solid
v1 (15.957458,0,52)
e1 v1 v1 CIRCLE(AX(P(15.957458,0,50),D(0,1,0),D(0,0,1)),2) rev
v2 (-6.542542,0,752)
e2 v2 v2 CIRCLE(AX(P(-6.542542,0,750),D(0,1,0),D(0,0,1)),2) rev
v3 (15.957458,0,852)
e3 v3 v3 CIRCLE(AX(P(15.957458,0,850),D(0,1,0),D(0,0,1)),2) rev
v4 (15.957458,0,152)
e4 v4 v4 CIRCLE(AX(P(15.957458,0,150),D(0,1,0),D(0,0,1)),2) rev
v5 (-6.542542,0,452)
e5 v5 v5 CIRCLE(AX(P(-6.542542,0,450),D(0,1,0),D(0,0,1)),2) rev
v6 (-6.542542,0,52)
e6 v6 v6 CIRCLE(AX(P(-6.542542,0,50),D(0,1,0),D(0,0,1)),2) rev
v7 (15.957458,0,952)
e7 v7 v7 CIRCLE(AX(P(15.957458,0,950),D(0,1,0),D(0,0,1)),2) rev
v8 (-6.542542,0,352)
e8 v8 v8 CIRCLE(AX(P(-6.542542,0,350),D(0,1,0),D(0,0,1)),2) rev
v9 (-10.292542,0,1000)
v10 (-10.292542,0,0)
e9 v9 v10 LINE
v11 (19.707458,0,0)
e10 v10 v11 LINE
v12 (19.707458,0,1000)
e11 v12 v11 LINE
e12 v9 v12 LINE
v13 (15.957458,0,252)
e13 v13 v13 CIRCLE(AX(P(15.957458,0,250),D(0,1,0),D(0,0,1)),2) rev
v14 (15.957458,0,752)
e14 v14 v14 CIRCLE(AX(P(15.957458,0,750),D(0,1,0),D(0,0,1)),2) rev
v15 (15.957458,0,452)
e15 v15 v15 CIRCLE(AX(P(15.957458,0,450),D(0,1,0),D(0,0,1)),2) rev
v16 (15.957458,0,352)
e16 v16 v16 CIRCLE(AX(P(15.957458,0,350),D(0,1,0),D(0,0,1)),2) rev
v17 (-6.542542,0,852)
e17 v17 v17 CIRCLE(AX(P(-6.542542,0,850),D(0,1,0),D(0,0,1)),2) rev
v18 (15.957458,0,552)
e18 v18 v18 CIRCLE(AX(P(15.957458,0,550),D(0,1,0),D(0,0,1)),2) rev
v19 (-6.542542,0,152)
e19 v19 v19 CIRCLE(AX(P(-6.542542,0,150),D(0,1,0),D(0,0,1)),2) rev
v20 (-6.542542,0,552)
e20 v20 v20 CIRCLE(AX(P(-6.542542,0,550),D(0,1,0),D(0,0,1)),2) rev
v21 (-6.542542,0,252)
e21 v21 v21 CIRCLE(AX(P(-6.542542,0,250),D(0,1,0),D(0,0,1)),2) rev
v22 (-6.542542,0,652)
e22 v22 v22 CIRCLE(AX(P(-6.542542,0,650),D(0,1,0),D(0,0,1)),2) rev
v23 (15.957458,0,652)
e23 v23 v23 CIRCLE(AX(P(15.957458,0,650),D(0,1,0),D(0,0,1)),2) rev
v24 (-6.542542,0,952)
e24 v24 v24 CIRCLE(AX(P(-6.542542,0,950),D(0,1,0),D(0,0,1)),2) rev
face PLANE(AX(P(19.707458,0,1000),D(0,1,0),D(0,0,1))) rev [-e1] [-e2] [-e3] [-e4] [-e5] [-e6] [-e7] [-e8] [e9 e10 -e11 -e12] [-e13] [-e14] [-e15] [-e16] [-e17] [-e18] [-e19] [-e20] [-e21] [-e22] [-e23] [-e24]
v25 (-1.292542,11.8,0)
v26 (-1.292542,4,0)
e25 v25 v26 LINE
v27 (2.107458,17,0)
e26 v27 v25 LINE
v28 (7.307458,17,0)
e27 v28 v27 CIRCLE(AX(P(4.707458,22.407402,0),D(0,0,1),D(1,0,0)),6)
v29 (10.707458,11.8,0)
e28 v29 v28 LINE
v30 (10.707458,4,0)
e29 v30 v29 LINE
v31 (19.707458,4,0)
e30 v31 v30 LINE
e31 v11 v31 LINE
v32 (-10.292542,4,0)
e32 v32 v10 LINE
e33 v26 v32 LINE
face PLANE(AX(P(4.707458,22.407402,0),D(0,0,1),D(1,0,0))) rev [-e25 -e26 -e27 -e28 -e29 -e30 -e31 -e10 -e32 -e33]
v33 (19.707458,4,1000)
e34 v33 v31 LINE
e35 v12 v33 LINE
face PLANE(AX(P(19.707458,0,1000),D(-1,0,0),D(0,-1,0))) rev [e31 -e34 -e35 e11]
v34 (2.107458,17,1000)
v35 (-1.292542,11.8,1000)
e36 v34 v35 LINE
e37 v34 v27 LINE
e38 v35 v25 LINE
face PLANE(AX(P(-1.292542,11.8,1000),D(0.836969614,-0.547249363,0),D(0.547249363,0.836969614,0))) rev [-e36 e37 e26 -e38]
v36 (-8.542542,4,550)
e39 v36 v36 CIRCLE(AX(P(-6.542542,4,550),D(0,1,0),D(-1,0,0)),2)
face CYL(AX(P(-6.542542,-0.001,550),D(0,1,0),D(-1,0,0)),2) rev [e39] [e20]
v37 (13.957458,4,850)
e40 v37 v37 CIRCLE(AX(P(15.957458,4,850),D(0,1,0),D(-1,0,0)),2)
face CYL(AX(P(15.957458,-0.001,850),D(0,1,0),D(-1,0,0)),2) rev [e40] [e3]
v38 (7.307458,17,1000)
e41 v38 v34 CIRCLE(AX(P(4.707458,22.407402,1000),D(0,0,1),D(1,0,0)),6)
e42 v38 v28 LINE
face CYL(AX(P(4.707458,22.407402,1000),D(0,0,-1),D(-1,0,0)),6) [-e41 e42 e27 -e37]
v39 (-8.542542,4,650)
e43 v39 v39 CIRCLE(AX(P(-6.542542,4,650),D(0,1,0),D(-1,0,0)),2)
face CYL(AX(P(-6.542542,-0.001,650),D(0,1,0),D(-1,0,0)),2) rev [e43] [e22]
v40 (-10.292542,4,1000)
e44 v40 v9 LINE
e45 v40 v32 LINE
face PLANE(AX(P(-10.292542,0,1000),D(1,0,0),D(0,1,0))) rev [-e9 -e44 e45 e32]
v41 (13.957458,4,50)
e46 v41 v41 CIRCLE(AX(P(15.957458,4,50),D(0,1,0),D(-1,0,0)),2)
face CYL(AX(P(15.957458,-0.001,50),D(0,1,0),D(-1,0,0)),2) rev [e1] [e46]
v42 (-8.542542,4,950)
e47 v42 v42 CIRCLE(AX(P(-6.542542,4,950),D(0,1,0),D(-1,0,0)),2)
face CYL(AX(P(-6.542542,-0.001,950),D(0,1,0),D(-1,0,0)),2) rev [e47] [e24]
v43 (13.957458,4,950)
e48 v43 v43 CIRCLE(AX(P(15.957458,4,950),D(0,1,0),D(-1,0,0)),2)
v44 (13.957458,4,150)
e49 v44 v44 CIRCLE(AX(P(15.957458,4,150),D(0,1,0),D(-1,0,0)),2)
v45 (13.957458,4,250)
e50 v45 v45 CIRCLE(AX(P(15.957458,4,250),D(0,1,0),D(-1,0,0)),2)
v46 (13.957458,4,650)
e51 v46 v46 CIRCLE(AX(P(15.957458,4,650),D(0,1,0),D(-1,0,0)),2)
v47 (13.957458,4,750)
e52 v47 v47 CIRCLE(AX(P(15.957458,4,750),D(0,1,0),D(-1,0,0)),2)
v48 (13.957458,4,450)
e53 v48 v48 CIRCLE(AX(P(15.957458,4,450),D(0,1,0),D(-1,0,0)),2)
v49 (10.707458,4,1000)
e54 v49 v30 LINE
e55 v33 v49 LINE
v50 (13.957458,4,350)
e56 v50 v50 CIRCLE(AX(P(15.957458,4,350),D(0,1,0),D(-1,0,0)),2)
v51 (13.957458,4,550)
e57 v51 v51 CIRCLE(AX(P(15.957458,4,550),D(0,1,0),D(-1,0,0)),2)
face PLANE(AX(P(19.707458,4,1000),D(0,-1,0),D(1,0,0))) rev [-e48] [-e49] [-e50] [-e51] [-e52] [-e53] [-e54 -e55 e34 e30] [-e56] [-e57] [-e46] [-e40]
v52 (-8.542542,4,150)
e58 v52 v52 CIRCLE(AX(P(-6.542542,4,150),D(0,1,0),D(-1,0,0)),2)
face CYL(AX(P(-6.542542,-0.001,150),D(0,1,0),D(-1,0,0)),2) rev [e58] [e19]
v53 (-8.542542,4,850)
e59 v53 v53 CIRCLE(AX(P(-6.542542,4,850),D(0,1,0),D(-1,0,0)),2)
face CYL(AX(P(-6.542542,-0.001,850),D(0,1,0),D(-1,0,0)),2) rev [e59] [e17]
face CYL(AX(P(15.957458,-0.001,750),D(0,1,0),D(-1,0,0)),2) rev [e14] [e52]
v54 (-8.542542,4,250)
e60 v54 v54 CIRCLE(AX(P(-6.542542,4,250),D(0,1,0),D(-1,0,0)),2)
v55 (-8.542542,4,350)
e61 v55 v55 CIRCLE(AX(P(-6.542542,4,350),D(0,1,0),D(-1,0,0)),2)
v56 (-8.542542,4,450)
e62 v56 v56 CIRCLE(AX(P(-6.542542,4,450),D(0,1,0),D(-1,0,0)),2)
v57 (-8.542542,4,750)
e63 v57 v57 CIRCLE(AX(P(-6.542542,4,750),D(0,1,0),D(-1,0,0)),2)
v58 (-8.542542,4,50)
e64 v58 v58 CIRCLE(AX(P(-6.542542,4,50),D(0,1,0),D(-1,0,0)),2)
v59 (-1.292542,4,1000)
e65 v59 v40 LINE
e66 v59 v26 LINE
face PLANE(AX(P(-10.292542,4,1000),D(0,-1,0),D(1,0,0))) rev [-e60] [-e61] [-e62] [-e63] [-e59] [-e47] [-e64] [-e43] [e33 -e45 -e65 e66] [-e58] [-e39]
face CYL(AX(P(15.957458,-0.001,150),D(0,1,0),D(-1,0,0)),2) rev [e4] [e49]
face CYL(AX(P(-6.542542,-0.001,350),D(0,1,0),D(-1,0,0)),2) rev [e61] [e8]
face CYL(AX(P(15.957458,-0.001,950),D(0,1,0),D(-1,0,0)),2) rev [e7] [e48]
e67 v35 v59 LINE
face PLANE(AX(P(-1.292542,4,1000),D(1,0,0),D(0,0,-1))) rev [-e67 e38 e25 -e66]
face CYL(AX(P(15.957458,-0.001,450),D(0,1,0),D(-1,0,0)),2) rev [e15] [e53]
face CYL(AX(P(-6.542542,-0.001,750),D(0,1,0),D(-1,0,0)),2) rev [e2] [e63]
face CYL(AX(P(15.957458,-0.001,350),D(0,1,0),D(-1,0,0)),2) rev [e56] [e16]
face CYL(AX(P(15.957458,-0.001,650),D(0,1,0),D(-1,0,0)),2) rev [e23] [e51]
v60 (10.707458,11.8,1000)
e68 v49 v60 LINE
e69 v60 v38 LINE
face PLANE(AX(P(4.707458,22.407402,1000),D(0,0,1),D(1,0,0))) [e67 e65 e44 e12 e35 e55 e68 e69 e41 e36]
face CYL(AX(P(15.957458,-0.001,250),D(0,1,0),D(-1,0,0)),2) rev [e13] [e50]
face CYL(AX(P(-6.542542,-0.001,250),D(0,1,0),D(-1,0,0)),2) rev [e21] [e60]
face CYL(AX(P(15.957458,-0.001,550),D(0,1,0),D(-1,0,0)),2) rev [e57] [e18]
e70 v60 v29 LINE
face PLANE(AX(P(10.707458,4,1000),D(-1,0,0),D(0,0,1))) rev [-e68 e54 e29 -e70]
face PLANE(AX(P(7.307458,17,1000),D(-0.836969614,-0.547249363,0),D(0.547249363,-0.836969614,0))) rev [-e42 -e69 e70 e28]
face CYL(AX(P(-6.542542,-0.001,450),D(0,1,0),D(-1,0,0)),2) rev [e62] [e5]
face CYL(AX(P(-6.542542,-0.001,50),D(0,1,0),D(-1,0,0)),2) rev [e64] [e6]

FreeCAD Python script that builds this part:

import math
import FreeCAD as App
import Part
import Sketcher

V = App.Vector
Q = App.Units.Quantity

doc = App.newDocument("Part")
params = doc.addObject("Spreadsheet::Sheet", "Params")
for row, (alias, value) in enumerate([
    ("sketch1_radius", "6 mm"),
    ("sketch1_width", "30 mm"),
    ("sketch1_width2", "9 mm"),
    ("sketch1_height", "4 mm"),
    ("sketch1_height2", "7.8 mm"),
    ("pad1_length", "1000 mm"),
    ("sketch2_diameter", "4 mm"),
    ("sketch3_diameter", "4 mm"),
    ("sketch4_diameter", "4 mm"),
    ("sketch5_diameter", "4 mm"),
    ("sketch6_diameter", "4 mm"),
    ("sketch7_diameter", "4 mm"),
    ("sketch8_diameter", "4 mm"),
    ("sketch9_diameter", "4 mm"),
    ("sketch10_diameter", "4 mm"),
    ("sketch11_diameter", "4 mm"),
    ("sketch12_diameter", "4 mm"),
    ("sketch13_diameter", "4 mm"),
    ("sketch14_diameter", "4 mm"),
    ("sketch15_diameter", "4 mm"),
    ("sketch16_diameter", "4 mm"),
    ("sketch17_diameter", "4 mm"),
    ("sketch18_diameter", "4 mm"),
    ("sketch19_diameter", "4 mm"),
    ("sketch20_diameter", "4 mm"),
    ("sketch21_diameter", "4 mm"),
], start=1):
    params.set(f"A{row}", alias)
    params.set(f"B{row}", "=" + value)
    params.setAlias(f"B{row}", alias)

body = doc.addObject("PartDesign::Body", "Body")

sketch1 = body.newObject("Sketcher::SketchObject", "Sketch")
sketch1.AttachmentSupport = (doc.getObject("XY_Plane"), [""])
sketch1.MapMode = "FlatFace"
sketch1.addGeometry(Part.LineSegment(V(-10.3, 0, 0), V(19.7, 0, 0)), False)
sketch1.addGeometry(Part.LineSegment(V(19.7, 0, 0), V(19.7, 4, 0)), False)
sketch1.addGeometry(Part.LineSegment(V(19.7, 4, 0), V(10.7, 4, 0)), False)
sketch1.addGeometry(Part.LineSegment(V(10.7, 4, 0), V(10.7, 11.8, 0)), False)
sketch1.addGeometry(Part.LineSegment(V(10.7, 11.8, 0), V(7.3, 17, 0)), False)
sketch1.addGeometry(Part.ArcOfCircle(Part.Circle(V(4.7, 22.4, 0), V(0, 0, 1), 6), math.radians(-64), math.radians(244)), False)
sketch1.addGeometry(Part.LineSegment(V(2.1, 17, 0), V(-1.3, 11.8, 0)), False)
sketch1.addGeometry(Part.LineSegment(V(-1.3, 11.8, 0), V(-1.3, 4, 0)), False)
sketch1.addGeometry(Part.LineSegment(V(-1.3, 4, 0), V(-10.3, 4, 0)), False)
sketch1.addGeometry(Part.LineSegment(V(-10.3, 4, 0), V(-10.3, 0, 0)), False)
sketch1.addConstraint(Sketcher.Constraint("Coincident", 0, 2, 1, 1))
sketch1.addConstraint(Sketcher.Constraint("Coincident", 1, 2, 2, 1))
sketch1.addConstraint(Sketcher.Constraint("Coincident", 2, 2, 3, 1))
sketch1.addConstraint(Sketcher.Constraint("Coincident", 3, 2, 4, 1))
sketch1.addConstraint(Sketcher.Constraint("Coincident", 4, 2, 5, 1))
sketch1.addConstraint(Sketcher.Constraint("Coincident", 5, 2, 6, 1))
sketch1.addConstraint(Sketcher.Constraint("Coincident", 6, 2, 7, 1))
sketch1.addConstraint(Sketcher.Constraint("Coincident", 7, 2, 8, 1))
sketch1.addConstraint(Sketcher.Constraint("Coincident", 8, 2, 9, 1))
sketch1.addConstraint(Sketcher.Constraint("Coincident", 9, 2, 0, 1))
sketch1.addConstraint(Sketcher.Constraint("Horizontal", 0))
sketch1.addConstraint(Sketcher.Constraint("Vertical", 1))
sketch1.addConstraint(Sketcher.Constraint("Horizontal", 2))
sketch1.addConstraint(Sketcher.Constraint("Vertical", 3))
sketch1.addConstraint(Sketcher.Constraint("Vertical", 7))
sketch1.addConstraint(Sketcher.Constraint("Horizontal", 8))
sketch1.addConstraint(Sketcher.Constraint("Vertical", 9))
sketch1.addConstraint(Sketcher.Constraint("PointOnObject", 0, 2, -1))
sketch1.addConstraint(Sketcher.Constraint("Horizontal", 4, 2, 5, 2))
sketch1.addConstraint(Sketcher.Constraint("Horizontal", 3, 2, 6, 2))
sketch1.addConstraint(Sketcher.Constraint("Horizontal", 2, 2, 7, 2))
sketch1.addConstraint(Sketcher.Constraint("Equal", 2, 8))
sketch1.addConstraint(Sketcher.Constraint("Equal", 4, 6))
sketch1.addConstraint(Sketcher.Constraint("Radius", 5, Q("6 mm")))
sketch1.addConstraint(Sketcher.Constraint("DistanceX", 0, 1, 0, 2, Q("30 mm")))
sketch1.addConstraint(Sketcher.Constraint("DistanceX", 2, 2, 2, 1, Q("9 mm")))
sketch1.addConstraint(Sketcher.Constraint("DistanceY", 1, 1, 1, 2, Q("4 mm")))
sketch1.addConstraint(Sketcher.Constraint("DistanceY", 3, 1, 3, 2, Q("7.8 mm")))
sketch1.addConstraint(Sketcher.Constraint("DistanceY", -1, 1, 4, 2, Q("17 mm")))
sketch1.addConstraint(Sketcher.Constraint("DistanceX", 5, 3, 4, 2, Q("2.6 mm")))
sketch1.addConstraint(Sketcher.Constraint("DistanceX", -1, 1, 5, 3, Q("4.707458 mm")))
sketch1.setExpression("Constraints[23]", "Params.sketch1_radius")
sketch1.setExpression("Constraints[24]", "Params.sketch1_width")
sketch1.setExpression("Constraints[25]", "Params.sketch1_width2")
sketch1.setExpression("Constraints[26]", "Params.sketch1_height")
sketch1.setExpression("Constraints[27]", "Params.sketch1_height2")
pad1 = body.newObject("PartDesign::Pad", "Pad")
pad1.Profile = sketch1
pad1.setExpression("Length", "Params.pad1_length")

sketch2 = body.newObject("Sketcher::SketchObject", "Sketch001")
sketch2.AttachmentSupport = (doc.getObject("XZ_Plane"), [""])
sketch2.MapMode = "FlatFace"
sketch2.AttachmentOffset = App.Placement(V(0, 0, -4), App.Rotation())
sketch2.addGeometry(Part.Circle(V(-6.5, 50, 0), V(0, 0, 1), 2), False)
sketch2.addConstraint(Sketcher.Constraint("Diameter", 0, Q("4 mm")))
sketch2.addConstraint(Sketcher.Constraint("DistanceY", -1, 1, 0, 3, Q("50 mm")))
sketch2.addConstraint(Sketcher.Constraint("DistanceX", 0, 3, -1, 1, Q("6.542542 mm")))
sketch2.setExpression("Constraints[0]", "Params.sketch2_diameter")
pocket1 = body.newObject("PartDesign::Pocket", "Pocket")
pocket1.Profile = sketch2
pocket1.Type = "UpToFirst"
pocket1.Reversed = True

sketch3 = body.newObject("Sketcher::SketchObject", "Sketch002")
sketch3.AttachmentSupport = (doc.getObject("XZ_Plane"), [""])
sketch3.MapMode = "FlatFace"
sketch3.AttachmentOffset = App.Placement(V(0, 0, -4), App.Rotation())
sketch3.addGeometry(Part.Circle(V(-6.5, 150, 0), V(0, 0, 1), 2), False)
sketch3.addConstraint(Sketcher.Constraint("Diameter", 0, Q("4 mm")))
sketch3.addConstraint(Sketcher.Constraint("DistanceY", -1, 1, 0, 3, Q("150 mm")))
sketch3.addConstraint(Sketcher.Constraint("DistanceX", 0, 3, -1, 1, Q("6.542542 mm")))
sketch3.setExpression("Constraints[0]", "Params.sketch3_diameter")
pocket2 = body.newObject("PartDesign::Pocket", "Pocket001")
pocket2.Profile = sketch3
pocket2.Type = "UpToFirst"
pocket2.Reversed = True

sketch4 = body.newObject("Sketcher::SketchObject", "Sketch003")
sketch4.AttachmentSupport = (doc.getObject("XZ_Plane"), [""])
sketch4.MapMode = "FlatFace"
sketch4.AttachmentOffset = App.Placement(V(0, 0, -4), App.Rotation())
sketch4.addGeometry(Part.Circle(V(-6.5, 250, 0), V(0, 0, 1), 2), False)
sketch4.addConstraint(Sketcher.Constraint("Diameter", 0, Q("4 mm")))
sketch4.addConstraint(Sketcher.Constraint("DistanceY", -1, 1, 0, 3, Q("250 mm")))
sketch4.addConstraint(Sketcher.Constraint("DistanceX", 0, 3, -1, 1, Q("6.542542 mm")))
sketch4.setExpression("Constraints[0]", "Params.sketch4_diameter")
pocket3 = body.newObject("PartDesign::Pocket", "Pocket002")
pocket3.Profile = sketch4
pocket3.Type = "UpToFirst"
pocket3.Reversed = True

sketch5 = body.newObject("Sketcher::SketchObject", "Sketch004")
sketch5.AttachmentSupport = (doc.getObject("XZ_Plane"), [""])
sketch5.MapMode = "FlatFace"
sketch5.AttachmentOffset = App.Placement(V(0, 0, -4), App.Rotation())
sketch5.addGeometry(Part.Circle(V(-6.5, 350, 0), V(0, 0, 1), 2), False)
sketch5.addConstraint(Sketcher.Constraint("Diameter", 0, Q("4 mm")))
sketch5.addConstraint(Sketcher.Constraint("DistanceY", -1, 1, 0, 3, Q("350 mm")))
sketch5.addConstraint(Sketcher.Constraint("DistanceX", 0, 3, -1, 1, Q("6.542542 mm")))
sketch5.setExpression("Constraints[0]", "Params.sketch5_diameter")
pocket4 = body.newObject("PartDesign::Pocket", "Pocket003")
pocket4.Profile = sketch5
pocket4.Type = "UpToFirst"
pocket4.Reversed = True

sketch6 = body.newObject("Sketcher::SketchObject", "Sketch005")
sketch6.AttachmentSupport = (doc.getObject("XZ_Plane"), [""])
sketch6.MapMode = "FlatFace"
sketch6.AttachmentOffset = App.Placement(V(0, 0, -4), App.Rotation())
sketch6.addGeometry(Part.Circle(V(-6.5, 450, 0), V(0, 0, 1), 2), False)
sketch6.addConstraint(Sketcher.Constraint("Diameter", 0, Q("4 mm")))
sketch6.addConstraint(Sketcher.Constraint("DistanceY", -1, 1, 0, 3, Q("450 mm")))
sketch6.addConstraint(Sketcher.Constraint("DistanceX", 0, 3, -1, 1, Q("6.542542 mm")))
sketch6.setExpression("Constraints[0]", "Params.sketch6_diameter")
pocket5 = body.newObject("PartDesign::Pocket", "Pocket004")
pocket5.Profile = sketch6
pocket5.Type = "UpToFirst"
pocket5.Reversed = True

sketch7 = body.newObject("Sketcher::SketchObject", "Sketch006")
sketch7.AttachmentSupport = (doc.getObject("XZ_Plane"), [""])
sketch7.MapMode = "FlatFace"
sketch7.AttachmentOffset = App.Placement(V(0, 0, -4), App.Rotation())
sketch7.addGeometry(Part.Circle(V(-6.5, 550, 0), V(0, 0, 1), 2), False)
sketch7.addConstraint(Sketcher.Constraint("Diameter", 0, Q("4 mm")))
sketch7.addConstraint(Sketcher.Constraint("DistanceY", -1, 1, 0, 3, Q("550 mm")))
sketch7.addConstraint(Sketcher.Constraint("DistanceX", 0, 3, -1, 1, Q("6.542542 mm")))
sketch7.setExpression("Constraints[0]", "Params.sketch7_diameter")
pocket6 = body.newObject("PartDesign::Pocket", "Pocket005")
pocket6.Profile = sketch7
pocket6.Type = "UpToFirst"
pocket6.Reversed = True

sketch8 = body.newObject("Sketcher::SketchObject", "Sketch007")
sketch8.AttachmentSupport = (doc.getObject("XZ_Plane"), [""])
sketch8.MapMode = "FlatFace"
sketch8.AttachmentOffset = App.Placement(V(0, 0, -4), App.Rotation())
sketch8.addGeometry(Part.Circle(V(-6.5, 650, 0), V(0, 0, 1), 2), False)
sketch8.addConstraint(Sketcher.Constraint("Diameter", 0, Q("4 mm")))
sketch8.addConstraint(Sketcher.Constraint("DistanceY", -1, 1, 0, 3, Q("650 mm")))
sketch8.addConstraint(Sketcher.Constraint("DistanceX", 0, 3, -1, 1, Q("6.542542 mm")))
sketch8.setExpression("Constraints[0]", "Params.sketch8_diameter")
pocket7 = body.newObject("PartDesign::Pocket", "Pocket006")
pocket7.Profile = sketch8
pocket7.Type = "UpToFirst"
pocket7.Reversed = True

sketch9 = body.newObject("Sketcher::SketchObject", "Sketch008")
sketch9.AttachmentSupport = (doc.getObject("XZ_Plane"), [""])
sketch9.MapMode = "FlatFace"
sketch9.AttachmentOffset = App.Placement(V(0, 0, -4), App.Rotation())
sketch9.addGeometry(Part.Circle(V(-6.5, 750, 0), V(0, 0, 1), 2), False)
sketch9.addConstraint(Sketcher.Constraint("Diameter", 0, Q("4 mm")))
sketch9.addConstraint(Sketcher.Constraint("DistanceY", -1, 1, 0, 3, Q("750 mm")))
sketch9.addConstraint(Sketcher.Constraint("DistanceX", 0, 3, -1, 1, Q("6.542542 mm")))
sketch9.setExpression("Constraints[0]", "Params.sketch9_diameter")
pocket8 = body.newObject("PartDesign::Pocket", "Pocket007")
pocket8.Profile = sketch9
pocket8.Type = "UpToFirst"
pocket8.Reversed = True

sketch10 = body.newObject("Sketcher::SketchObject", "Sketch009")
sketch10.AttachmentSupport = (doc.getObject("XZ_Plane"), [""])
sketch10.MapMode = "FlatFace"
sketch10.AttachmentOffset = App.Placement(V(0, 0, -4), App.Rotation())
sketch10.addGeometry(Part.Circle(V(-6.5, 850, 0), V(0, 0, 1), 2), False)
sketch10.addConstraint(Sketcher.Constraint("Diameter", 0, Q("4 mm")))
sketch10.addConstraint(Sketcher.Constraint("DistanceY", -1, 1, 0, 3, Q("850 mm")))
sketch10.addConstraint(Sketcher.Constraint("DistanceX", 0, 3, -1, 1, Q("6.542542 mm")))
sketch10.setExpression("Constraints[0]", "Params.sketch10_diameter")
pocket9 = body.newObject("PartDesign::Pocket", "Pocket008")
pocket9.Profile = sketch10
pocket9.Type = "UpToFirst"
pocket9.Reversed = True

sketch11 = body.newObject("Sketcher::SketchObject", "Sketch010")
sketch11.AttachmentSupport = (doc.getObject("XZ_Plane"), [""])
sketch11.MapMode = "FlatFace"
sketch11.AttachmentOffset = App.Placement(V(0, 0, -4), App.Rotation())
sketch11.addGeometry(Part.Circle(V(-6.5, 950, 0), V(0, 0, 1), 2), False)
sketch11.addConstraint(Sketcher.Constraint("Diameter", 0, Q("4 mm")))
sketch11.addConstraint(Sketcher.Constraint("DistanceY", -1, 1, 0, 3, Q("950 mm")))
sketch11.addConstraint(Sketcher.Constraint("DistanceX", 0, 3, -1, 1, Q("6.542542 mm")))
sketch11.setExpression("Constraints[0]", "Params.sketch11_diameter")
pocket10 = body.newObject("PartDesign::Pocket", "Pocket009")
pocket10.Profile = sketch11
pocket10.Type = "UpToFirst"
pocket10.Reversed = True

sketch12 = body.newObject("Sketcher::SketchObject", "Sketch011")
sketch12.AttachmentSupport = (doc.getObject("XZ_Plane"), [""])
sketch12.MapMode = "FlatFace"
sketch12.AttachmentOffset = App.Placement(V(0, 0, -4), App.Rotation())
sketch12.addGeometry(Part.Circle(V(16, 50, 0), V(0, 0, 1), 2), False)
sketch12.addConstraint(Sketcher.Constraint("Diameter", 0, Q("4 mm")))
sketch12.addConstraint(Sketcher.Constraint("DistanceY", -1, 1, 0, 3, Q("50 mm")))
sketch12.addConstraint(Sketcher.Constraint("DistanceX", -1, 1, 0, 3, Q("15.957458 mm")))
sketch12.setExpression("Constraints[0]", "Params.sketch12_diameter")
pocket11 = body.newObject("PartDesign::Pocket", "Pocket010")
pocket11.Profile = sketch12
pocket11.Type = "UpToFirst"
pocket11.Reversed = True

sketch13 = body.newObject("Sketcher::SketchObject", "Sketch012")
sketch13.AttachmentSupport = (doc.getObject("XZ_Plane"), [""])
sketch13.MapMode = "FlatFace"
sketch13.AttachmentOffset = App.Placement(V(0, 0, -4), App.Rotation())
sketch13.addGeometry(Part.Circle(V(16, 150, 0), V(0, 0, 1), 2), False)
sketch13.addConstraint(Sketcher.Constraint("Diameter", 0, Q("4 mm")))
sketch13.addConstraint(Sketcher.Constraint("DistanceY", -1, 1, 0, 3, Q("150 mm")))
sketch13.addConstraint(Sketcher.Constraint("DistanceX", -1, 1, 0, 3, Q("15.957458 mm")))
sketch13.setExpression("Constraints[0]", "Params.sketch13_diameter")
pocket12 = body.newObject("PartDesign::Pocket", "Pocket011")
pocket12.Profile = sketch13
pocket12.Type = "UpToFirst"
pocket12.Reversed = True

sketch14 = body.newObject("Sketcher::SketchObject", "Sketch013")
sketch14.AttachmentSupport = (doc.getObject("XZ_Plane"), [""])
sketch14.MapMode = "FlatFace"
sketch14.AttachmentOffset = App.Placement(V(0, 0, -4), App.Rotation())
sketch14.addGeometry(Part.Circle(V(16, 250, 0), V(0, 0, 1), 2), False)
sketch14.addConstraint(Sketcher.Constraint("Diameter", 0, Q("4 mm")))
sketch14.addConstraint(Sketcher.Constraint("DistanceY", -1, 1, 0, 3, Q("250 mm")))
sketch14.addConstraint(Sketcher.Constraint("DistanceX", -1, 1, 0, 3, Q("15.957458 mm")))
sketch14.setExpression("Constraints[0]", "Params.sketch14_diameter")
pocket13 = body.newObject("PartDesign::Pocket", "Pocket012")
pocket13.Profile = sketch14
pocket13.Type = "UpToFirst"
pocket13.Reversed = True

sketch15 = body.newObject("Sketcher::SketchObject", "Sketch014")
sketch15.AttachmentSupport = (doc.getObject("XZ_Plane"), [""])
sketch15.MapMode = "FlatFace"
sketch15.AttachmentOffset = App.Placement(V(0, 0, -4), App.Rotation())
sketch15.addGeometry(Part.Circle(V(16, 350, 0), V(0, 0, 1), 2), False)
sketch15.addConstraint(Sketcher.Constraint("Diameter", 0, Q("4 mm")))
sketch15.addConstraint(Sketcher.Constraint("DistanceY", -1, 1, 0, 3, Q("350 mm")))
sketch15.addConstraint(Sketcher.Constraint("DistanceX", -1, 1, 0, 3, Q("15.957458 mm")))
sketch15.setExpression("Constraints[0]", "Params.sketch15_diameter")
pocket14 = body.newObject("PartDesign::Pocket", "Pocket013")
pocket14.Profile = sketch15
pocket14.Type = "UpToFirst"
pocket14.Reversed = True

sketch16 = body.newObject("Sketcher::SketchObject", "Sketch015")
sketch16.AttachmentSupport = (doc.getObject("XZ_Plane"), [""])
sketch16.MapMode = "FlatFace"
sketch16.AttachmentOffset = App.Placement(V(0, 0, -4), App.Rotation())
sketch16.addGeometry(Part.Circle(V(16, 450, 0), V(0, 0, 1), 2), False)
sketch16.addConstraint(Sketcher.Constraint("Diameter", 0, Q("4 mm")))
sketch16.addConstraint(Sketcher.Constraint("DistanceY", -1, 1, 0, 3, Q("450 mm")))
sketch16.addConstraint(Sketcher.Constraint("DistanceX", -1, 1, 0, 3, Q("15.957458 mm")))
sketch16.setExpression("Constraints[0]", "Params.sketch16_diameter")
pocket15 = body.newObject("PartDesign::Pocket", "Pocket014")
pocket15.Profile = sketch16
pocket15.Type = "UpToFirst"
pocket15.Reversed = True

sketch17 = body.newObject("Sketcher::SketchObject", "Sketch016")
sketch17.AttachmentSupport = (doc.getObject("XZ_Plane"), [""])
sketch17.MapMode = "FlatFace"
sketch17.AttachmentOffset = App.Placement(V(0, 0, -4), App.Rotation())
sketch17.addGeometry(Part.Circle(V(16, 550, 0), V(0, 0, 1), 2), False)
sketch17.addConstraint(Sketcher.Constraint("Diameter", 0, Q("4 mm")))
sketch17.addConstraint(Sketcher.Constraint("DistanceY", -1, 1, 0, 3, Q("550 mm")))
sketch17.addConstraint(Sketcher.Constraint("DistanceX", -1, 1, 0, 3, Q("15.957458 mm")))
sketch17.setExpression("Constraints[0]", "Params.sketch17_diameter")
pocket16 = body.newObject("PartDesign::Pocket", "Pocket015")
pocket16.Profile = sketch17
pocket16.Type = "UpToFirst"
pocket16.Reversed = True

sketch18 = body.newObject("Sketcher::SketchObject", "Sketch017")
sketch18.AttachmentSupport = (doc.getObject("XZ_Plane"), [""])
sketch18.MapMode = "FlatFace"
sketch18.AttachmentOffset = App.Placement(V(0, 0, -4), App.Rotation())
sketch18.addGeometry(Part.Circle(V(16, 650, 0), V(0, 0, 1), 2), False)
sketch18.addConstraint(Sketcher.Constraint("Diameter", 0, Q("4 mm")))
sketch18.addConstraint(Sketcher.Constraint("DistanceY", -1, 1, 0, 3, Q("650 mm")))
sketch18.addConstraint(Sketcher.Constraint("DistanceX", -1, 1, 0, 3, Q("15.957458 mm")))
sketch18.setExpression("Constraints[0]", "Params.sketch18_diameter")
pocket17 = body.newObject("PartDesign::Pocket", "Pocket016")
pocket17.Profile = sketch18
pocket17.Type = "UpToFirst"
pocket17.Reversed = True

sketch19 = body.newObject("Sketcher::SketchObject", "Sketch018")
sketch19.AttachmentSupport = (doc.getObject("XZ_Plane"), [""])
sketch19.MapMode = "FlatFace"
sketch19.AttachmentOffset = App.Placement(V(0, 0, -4), App.Rotation())
sketch19.addGeometry(Part.Circle(V(16, 750, 0), V(0, 0, 1), 2), False)
sketch19.addConstraint(Sketcher.Constraint("Diameter", 0, Q("4 mm")))
sketch19.addConstraint(Sketcher.Constraint("DistanceY", -1, 1, 0, 3, Q("750 mm")))
sketch19.addConstraint(Sketcher.Constraint("DistanceX", -1, 1, 0, 3, Q("15.957458 mm")))
sketch19.setExpression("Constraints[0]", "Params.sketch19_diameter")
pocket18 = body.newObject("PartDesign::Pocket", "Pocket017")
pocket18.Profile = sketch19
pocket18.Type = "UpToFirst"
pocket18.Reversed = True

sketch20 = body.newObject("Sketcher::SketchObject", "Sketch019")
sketch20.AttachmentSupport = (doc.getObject("XZ_Plane"), [""])
sketch20.MapMode = "FlatFace"
sketch20.AttachmentOffset = App.Placement(V(0, 0, -4), App.Rotation())
sketch20.addGeometry(Part.Circle(V(16, 850, 0), V(0, 0, 1), 2), False)
sketch20.addConstraint(Sketcher.Constraint("Diameter", 0, Q("4 mm")))
sketch20.addConstraint(Sketcher.Constraint("DistanceY", -1, 1, 0, 3, Q("850 mm")))
sketch20.addConstraint(Sketcher.Constraint("DistanceX", -1, 1, 0, 3, Q("15.957458 mm")))
sketch20.setExpression("Constraints[0]", "Params.sketch20_diameter")
pocket19 = body.newObject("PartDesign::Pocket", "Pocket018")
pocket19.Profile = sketch20
pocket19.Type = "UpToFirst"
pocket19.Reversed = True

sketch21 = body.newObject("Sketcher::SketchObject", "Sketch020")
sketch21.AttachmentSupport = (doc.getObject("XZ_Plane"), [""])
sketch21.MapMode = "FlatFace"
sketch21.AttachmentOffset = App.Placement(V(0, 0, -4), App.Rotation())
sketch21.addGeometry(Part.Circle(V(16, 950, 0), V(0, 0, 1), 2), False)
sketch21.addConstraint(Sketcher.Constraint("Diameter", 0, Q("4 mm")))
sketch21.addConstraint(Sketcher.Constraint("DistanceY", -1, 1, 0, 3, Q("950 mm")))
sketch21.addConstraint(Sketcher.Constraint("DistanceX", -1, 1, 0, 3, Q("15.957458 mm")))
sketch21.setExpression("Constraints[0]", "Params.sketch21_diameter")
pocket20 = body.newObject("PartDesign::Pocket", "Pocket019")
pocket20.Profile = sketch21
pocket20.Type = "UpToFirst"
pocket20.Reversed = True

doc.recompute()
